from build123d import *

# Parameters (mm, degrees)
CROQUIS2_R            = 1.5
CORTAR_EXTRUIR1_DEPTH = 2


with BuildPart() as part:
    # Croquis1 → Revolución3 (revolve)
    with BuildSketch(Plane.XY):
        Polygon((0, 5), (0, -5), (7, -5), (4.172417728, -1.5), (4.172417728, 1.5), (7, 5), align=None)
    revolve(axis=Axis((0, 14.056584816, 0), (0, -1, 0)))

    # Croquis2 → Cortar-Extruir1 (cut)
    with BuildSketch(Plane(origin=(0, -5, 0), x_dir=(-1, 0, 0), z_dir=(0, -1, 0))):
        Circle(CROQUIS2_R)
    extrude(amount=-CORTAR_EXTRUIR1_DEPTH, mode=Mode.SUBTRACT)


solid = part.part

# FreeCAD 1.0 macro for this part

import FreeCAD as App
import Part
import Sketcher
from FreeCAD import Vector

doc = App.newDocument("Part")
body = doc.addObject("PartDesign::Body", "Body")

sketch1 = body.newObject("Sketcher::SketchObject", "Sketch")
sketch1.AttachmentSupport = (doc.getObject("XY_Plane"), [""])
sketch1.MapMode = "FlatFace"
sketch1.addGeometry([
    Part.LineSegment(Vector(0, 5, 0), Vector(0, -5, 0)),
    Part.LineSegment(Vector(0, -5, 0), Vector(7, -5, 0)),
    Part.LineSegment(Vector(7, -5, 0), Vector(4.2, -1.5, 0)),
    Part.LineSegment(Vector(4.2, -1.5, 0), Vector(4.2, 1.5, 0)),
    Part.LineSegment(Vector(4.2, 1.5, 0), Vector(7, 5, 0)),
    Part.LineSegment(Vector(7, 5, 0), Vector(0, 5, 0)),
], False)
sketch1.addConstraint([
    Sketcher.Constraint("Coincident", 0, 2, 1, 1),
    Sketcher.Constraint("Coincident", 1, 2, 2, 1),
    Sketcher.Constraint("Coincident", 2, 2, 3, 1),
    Sketcher.Constraint("Coincident", 3, 2, 4, 1),
    Sketcher.Constraint("Coincident", 4, 2, 5, 1),
    Sketcher.Constraint("Coincident", 5, 2, 0, 1),
    Sketcher.Constraint("Vertical", 0),
    Sketcher.Constraint("Horizontal", 1),
    Sketcher.Constraint("Vertical", 3),
    Sketcher.Constraint("Horizontal", 5),
    Sketcher.Constraint("Symmetric", 0, 2, 5, 2, -1, 1),
    Sketcher.Constraint("Vertical", 1, 2, 4, 2),
    Sketcher.Constraint("Equal", 2, 4),
    Sketcher.Constraint("DistanceX", 1, 1, 1, 2, 7.0),
    Sketcher.Constraint("DistanceY", 0, 2, 0, 1, 10.0),
    Sketcher.Constraint("DistanceY", 3, 1, 3, 2, 3.0),
    Sketcher.Constraint("Distance", 2, 4.499469),
])
revolution = body.newObject("PartDesign::Revolution", "Revolution")
revolution.Profile = sketch1
revolution.ReferenceAxis = (sketch1, ["V_Axis"])
revolution.Angle = 360

sketch2 = body.newObject("Sketcher::SketchObject", "Sketch001")
sketch2.AttachmentSupport = (doc.getObject("XZ_Plane"), [""])
sketch2.MapMode = "FlatFace"
sketch2.AttachmentOffset = App.Placement(Vector(0, 0, 5), App.Rotation())
sketch2.addGeometry(Part.Circle(Vector(0, 0, 0), Vector(0, 0, 1), 1.5), False)
sketch2.addConstraint([
    Sketcher.Constraint("Coincident", 0, 3, -1, 1),
    Sketcher.Constraint("Diameter", 0, 3.0),
])
pocket1 = body.newObject("PartDesign::Pocket", "Pocket")
pocket1.Profile = sketch2
pocket1.Length = 2

doc.recompute()
